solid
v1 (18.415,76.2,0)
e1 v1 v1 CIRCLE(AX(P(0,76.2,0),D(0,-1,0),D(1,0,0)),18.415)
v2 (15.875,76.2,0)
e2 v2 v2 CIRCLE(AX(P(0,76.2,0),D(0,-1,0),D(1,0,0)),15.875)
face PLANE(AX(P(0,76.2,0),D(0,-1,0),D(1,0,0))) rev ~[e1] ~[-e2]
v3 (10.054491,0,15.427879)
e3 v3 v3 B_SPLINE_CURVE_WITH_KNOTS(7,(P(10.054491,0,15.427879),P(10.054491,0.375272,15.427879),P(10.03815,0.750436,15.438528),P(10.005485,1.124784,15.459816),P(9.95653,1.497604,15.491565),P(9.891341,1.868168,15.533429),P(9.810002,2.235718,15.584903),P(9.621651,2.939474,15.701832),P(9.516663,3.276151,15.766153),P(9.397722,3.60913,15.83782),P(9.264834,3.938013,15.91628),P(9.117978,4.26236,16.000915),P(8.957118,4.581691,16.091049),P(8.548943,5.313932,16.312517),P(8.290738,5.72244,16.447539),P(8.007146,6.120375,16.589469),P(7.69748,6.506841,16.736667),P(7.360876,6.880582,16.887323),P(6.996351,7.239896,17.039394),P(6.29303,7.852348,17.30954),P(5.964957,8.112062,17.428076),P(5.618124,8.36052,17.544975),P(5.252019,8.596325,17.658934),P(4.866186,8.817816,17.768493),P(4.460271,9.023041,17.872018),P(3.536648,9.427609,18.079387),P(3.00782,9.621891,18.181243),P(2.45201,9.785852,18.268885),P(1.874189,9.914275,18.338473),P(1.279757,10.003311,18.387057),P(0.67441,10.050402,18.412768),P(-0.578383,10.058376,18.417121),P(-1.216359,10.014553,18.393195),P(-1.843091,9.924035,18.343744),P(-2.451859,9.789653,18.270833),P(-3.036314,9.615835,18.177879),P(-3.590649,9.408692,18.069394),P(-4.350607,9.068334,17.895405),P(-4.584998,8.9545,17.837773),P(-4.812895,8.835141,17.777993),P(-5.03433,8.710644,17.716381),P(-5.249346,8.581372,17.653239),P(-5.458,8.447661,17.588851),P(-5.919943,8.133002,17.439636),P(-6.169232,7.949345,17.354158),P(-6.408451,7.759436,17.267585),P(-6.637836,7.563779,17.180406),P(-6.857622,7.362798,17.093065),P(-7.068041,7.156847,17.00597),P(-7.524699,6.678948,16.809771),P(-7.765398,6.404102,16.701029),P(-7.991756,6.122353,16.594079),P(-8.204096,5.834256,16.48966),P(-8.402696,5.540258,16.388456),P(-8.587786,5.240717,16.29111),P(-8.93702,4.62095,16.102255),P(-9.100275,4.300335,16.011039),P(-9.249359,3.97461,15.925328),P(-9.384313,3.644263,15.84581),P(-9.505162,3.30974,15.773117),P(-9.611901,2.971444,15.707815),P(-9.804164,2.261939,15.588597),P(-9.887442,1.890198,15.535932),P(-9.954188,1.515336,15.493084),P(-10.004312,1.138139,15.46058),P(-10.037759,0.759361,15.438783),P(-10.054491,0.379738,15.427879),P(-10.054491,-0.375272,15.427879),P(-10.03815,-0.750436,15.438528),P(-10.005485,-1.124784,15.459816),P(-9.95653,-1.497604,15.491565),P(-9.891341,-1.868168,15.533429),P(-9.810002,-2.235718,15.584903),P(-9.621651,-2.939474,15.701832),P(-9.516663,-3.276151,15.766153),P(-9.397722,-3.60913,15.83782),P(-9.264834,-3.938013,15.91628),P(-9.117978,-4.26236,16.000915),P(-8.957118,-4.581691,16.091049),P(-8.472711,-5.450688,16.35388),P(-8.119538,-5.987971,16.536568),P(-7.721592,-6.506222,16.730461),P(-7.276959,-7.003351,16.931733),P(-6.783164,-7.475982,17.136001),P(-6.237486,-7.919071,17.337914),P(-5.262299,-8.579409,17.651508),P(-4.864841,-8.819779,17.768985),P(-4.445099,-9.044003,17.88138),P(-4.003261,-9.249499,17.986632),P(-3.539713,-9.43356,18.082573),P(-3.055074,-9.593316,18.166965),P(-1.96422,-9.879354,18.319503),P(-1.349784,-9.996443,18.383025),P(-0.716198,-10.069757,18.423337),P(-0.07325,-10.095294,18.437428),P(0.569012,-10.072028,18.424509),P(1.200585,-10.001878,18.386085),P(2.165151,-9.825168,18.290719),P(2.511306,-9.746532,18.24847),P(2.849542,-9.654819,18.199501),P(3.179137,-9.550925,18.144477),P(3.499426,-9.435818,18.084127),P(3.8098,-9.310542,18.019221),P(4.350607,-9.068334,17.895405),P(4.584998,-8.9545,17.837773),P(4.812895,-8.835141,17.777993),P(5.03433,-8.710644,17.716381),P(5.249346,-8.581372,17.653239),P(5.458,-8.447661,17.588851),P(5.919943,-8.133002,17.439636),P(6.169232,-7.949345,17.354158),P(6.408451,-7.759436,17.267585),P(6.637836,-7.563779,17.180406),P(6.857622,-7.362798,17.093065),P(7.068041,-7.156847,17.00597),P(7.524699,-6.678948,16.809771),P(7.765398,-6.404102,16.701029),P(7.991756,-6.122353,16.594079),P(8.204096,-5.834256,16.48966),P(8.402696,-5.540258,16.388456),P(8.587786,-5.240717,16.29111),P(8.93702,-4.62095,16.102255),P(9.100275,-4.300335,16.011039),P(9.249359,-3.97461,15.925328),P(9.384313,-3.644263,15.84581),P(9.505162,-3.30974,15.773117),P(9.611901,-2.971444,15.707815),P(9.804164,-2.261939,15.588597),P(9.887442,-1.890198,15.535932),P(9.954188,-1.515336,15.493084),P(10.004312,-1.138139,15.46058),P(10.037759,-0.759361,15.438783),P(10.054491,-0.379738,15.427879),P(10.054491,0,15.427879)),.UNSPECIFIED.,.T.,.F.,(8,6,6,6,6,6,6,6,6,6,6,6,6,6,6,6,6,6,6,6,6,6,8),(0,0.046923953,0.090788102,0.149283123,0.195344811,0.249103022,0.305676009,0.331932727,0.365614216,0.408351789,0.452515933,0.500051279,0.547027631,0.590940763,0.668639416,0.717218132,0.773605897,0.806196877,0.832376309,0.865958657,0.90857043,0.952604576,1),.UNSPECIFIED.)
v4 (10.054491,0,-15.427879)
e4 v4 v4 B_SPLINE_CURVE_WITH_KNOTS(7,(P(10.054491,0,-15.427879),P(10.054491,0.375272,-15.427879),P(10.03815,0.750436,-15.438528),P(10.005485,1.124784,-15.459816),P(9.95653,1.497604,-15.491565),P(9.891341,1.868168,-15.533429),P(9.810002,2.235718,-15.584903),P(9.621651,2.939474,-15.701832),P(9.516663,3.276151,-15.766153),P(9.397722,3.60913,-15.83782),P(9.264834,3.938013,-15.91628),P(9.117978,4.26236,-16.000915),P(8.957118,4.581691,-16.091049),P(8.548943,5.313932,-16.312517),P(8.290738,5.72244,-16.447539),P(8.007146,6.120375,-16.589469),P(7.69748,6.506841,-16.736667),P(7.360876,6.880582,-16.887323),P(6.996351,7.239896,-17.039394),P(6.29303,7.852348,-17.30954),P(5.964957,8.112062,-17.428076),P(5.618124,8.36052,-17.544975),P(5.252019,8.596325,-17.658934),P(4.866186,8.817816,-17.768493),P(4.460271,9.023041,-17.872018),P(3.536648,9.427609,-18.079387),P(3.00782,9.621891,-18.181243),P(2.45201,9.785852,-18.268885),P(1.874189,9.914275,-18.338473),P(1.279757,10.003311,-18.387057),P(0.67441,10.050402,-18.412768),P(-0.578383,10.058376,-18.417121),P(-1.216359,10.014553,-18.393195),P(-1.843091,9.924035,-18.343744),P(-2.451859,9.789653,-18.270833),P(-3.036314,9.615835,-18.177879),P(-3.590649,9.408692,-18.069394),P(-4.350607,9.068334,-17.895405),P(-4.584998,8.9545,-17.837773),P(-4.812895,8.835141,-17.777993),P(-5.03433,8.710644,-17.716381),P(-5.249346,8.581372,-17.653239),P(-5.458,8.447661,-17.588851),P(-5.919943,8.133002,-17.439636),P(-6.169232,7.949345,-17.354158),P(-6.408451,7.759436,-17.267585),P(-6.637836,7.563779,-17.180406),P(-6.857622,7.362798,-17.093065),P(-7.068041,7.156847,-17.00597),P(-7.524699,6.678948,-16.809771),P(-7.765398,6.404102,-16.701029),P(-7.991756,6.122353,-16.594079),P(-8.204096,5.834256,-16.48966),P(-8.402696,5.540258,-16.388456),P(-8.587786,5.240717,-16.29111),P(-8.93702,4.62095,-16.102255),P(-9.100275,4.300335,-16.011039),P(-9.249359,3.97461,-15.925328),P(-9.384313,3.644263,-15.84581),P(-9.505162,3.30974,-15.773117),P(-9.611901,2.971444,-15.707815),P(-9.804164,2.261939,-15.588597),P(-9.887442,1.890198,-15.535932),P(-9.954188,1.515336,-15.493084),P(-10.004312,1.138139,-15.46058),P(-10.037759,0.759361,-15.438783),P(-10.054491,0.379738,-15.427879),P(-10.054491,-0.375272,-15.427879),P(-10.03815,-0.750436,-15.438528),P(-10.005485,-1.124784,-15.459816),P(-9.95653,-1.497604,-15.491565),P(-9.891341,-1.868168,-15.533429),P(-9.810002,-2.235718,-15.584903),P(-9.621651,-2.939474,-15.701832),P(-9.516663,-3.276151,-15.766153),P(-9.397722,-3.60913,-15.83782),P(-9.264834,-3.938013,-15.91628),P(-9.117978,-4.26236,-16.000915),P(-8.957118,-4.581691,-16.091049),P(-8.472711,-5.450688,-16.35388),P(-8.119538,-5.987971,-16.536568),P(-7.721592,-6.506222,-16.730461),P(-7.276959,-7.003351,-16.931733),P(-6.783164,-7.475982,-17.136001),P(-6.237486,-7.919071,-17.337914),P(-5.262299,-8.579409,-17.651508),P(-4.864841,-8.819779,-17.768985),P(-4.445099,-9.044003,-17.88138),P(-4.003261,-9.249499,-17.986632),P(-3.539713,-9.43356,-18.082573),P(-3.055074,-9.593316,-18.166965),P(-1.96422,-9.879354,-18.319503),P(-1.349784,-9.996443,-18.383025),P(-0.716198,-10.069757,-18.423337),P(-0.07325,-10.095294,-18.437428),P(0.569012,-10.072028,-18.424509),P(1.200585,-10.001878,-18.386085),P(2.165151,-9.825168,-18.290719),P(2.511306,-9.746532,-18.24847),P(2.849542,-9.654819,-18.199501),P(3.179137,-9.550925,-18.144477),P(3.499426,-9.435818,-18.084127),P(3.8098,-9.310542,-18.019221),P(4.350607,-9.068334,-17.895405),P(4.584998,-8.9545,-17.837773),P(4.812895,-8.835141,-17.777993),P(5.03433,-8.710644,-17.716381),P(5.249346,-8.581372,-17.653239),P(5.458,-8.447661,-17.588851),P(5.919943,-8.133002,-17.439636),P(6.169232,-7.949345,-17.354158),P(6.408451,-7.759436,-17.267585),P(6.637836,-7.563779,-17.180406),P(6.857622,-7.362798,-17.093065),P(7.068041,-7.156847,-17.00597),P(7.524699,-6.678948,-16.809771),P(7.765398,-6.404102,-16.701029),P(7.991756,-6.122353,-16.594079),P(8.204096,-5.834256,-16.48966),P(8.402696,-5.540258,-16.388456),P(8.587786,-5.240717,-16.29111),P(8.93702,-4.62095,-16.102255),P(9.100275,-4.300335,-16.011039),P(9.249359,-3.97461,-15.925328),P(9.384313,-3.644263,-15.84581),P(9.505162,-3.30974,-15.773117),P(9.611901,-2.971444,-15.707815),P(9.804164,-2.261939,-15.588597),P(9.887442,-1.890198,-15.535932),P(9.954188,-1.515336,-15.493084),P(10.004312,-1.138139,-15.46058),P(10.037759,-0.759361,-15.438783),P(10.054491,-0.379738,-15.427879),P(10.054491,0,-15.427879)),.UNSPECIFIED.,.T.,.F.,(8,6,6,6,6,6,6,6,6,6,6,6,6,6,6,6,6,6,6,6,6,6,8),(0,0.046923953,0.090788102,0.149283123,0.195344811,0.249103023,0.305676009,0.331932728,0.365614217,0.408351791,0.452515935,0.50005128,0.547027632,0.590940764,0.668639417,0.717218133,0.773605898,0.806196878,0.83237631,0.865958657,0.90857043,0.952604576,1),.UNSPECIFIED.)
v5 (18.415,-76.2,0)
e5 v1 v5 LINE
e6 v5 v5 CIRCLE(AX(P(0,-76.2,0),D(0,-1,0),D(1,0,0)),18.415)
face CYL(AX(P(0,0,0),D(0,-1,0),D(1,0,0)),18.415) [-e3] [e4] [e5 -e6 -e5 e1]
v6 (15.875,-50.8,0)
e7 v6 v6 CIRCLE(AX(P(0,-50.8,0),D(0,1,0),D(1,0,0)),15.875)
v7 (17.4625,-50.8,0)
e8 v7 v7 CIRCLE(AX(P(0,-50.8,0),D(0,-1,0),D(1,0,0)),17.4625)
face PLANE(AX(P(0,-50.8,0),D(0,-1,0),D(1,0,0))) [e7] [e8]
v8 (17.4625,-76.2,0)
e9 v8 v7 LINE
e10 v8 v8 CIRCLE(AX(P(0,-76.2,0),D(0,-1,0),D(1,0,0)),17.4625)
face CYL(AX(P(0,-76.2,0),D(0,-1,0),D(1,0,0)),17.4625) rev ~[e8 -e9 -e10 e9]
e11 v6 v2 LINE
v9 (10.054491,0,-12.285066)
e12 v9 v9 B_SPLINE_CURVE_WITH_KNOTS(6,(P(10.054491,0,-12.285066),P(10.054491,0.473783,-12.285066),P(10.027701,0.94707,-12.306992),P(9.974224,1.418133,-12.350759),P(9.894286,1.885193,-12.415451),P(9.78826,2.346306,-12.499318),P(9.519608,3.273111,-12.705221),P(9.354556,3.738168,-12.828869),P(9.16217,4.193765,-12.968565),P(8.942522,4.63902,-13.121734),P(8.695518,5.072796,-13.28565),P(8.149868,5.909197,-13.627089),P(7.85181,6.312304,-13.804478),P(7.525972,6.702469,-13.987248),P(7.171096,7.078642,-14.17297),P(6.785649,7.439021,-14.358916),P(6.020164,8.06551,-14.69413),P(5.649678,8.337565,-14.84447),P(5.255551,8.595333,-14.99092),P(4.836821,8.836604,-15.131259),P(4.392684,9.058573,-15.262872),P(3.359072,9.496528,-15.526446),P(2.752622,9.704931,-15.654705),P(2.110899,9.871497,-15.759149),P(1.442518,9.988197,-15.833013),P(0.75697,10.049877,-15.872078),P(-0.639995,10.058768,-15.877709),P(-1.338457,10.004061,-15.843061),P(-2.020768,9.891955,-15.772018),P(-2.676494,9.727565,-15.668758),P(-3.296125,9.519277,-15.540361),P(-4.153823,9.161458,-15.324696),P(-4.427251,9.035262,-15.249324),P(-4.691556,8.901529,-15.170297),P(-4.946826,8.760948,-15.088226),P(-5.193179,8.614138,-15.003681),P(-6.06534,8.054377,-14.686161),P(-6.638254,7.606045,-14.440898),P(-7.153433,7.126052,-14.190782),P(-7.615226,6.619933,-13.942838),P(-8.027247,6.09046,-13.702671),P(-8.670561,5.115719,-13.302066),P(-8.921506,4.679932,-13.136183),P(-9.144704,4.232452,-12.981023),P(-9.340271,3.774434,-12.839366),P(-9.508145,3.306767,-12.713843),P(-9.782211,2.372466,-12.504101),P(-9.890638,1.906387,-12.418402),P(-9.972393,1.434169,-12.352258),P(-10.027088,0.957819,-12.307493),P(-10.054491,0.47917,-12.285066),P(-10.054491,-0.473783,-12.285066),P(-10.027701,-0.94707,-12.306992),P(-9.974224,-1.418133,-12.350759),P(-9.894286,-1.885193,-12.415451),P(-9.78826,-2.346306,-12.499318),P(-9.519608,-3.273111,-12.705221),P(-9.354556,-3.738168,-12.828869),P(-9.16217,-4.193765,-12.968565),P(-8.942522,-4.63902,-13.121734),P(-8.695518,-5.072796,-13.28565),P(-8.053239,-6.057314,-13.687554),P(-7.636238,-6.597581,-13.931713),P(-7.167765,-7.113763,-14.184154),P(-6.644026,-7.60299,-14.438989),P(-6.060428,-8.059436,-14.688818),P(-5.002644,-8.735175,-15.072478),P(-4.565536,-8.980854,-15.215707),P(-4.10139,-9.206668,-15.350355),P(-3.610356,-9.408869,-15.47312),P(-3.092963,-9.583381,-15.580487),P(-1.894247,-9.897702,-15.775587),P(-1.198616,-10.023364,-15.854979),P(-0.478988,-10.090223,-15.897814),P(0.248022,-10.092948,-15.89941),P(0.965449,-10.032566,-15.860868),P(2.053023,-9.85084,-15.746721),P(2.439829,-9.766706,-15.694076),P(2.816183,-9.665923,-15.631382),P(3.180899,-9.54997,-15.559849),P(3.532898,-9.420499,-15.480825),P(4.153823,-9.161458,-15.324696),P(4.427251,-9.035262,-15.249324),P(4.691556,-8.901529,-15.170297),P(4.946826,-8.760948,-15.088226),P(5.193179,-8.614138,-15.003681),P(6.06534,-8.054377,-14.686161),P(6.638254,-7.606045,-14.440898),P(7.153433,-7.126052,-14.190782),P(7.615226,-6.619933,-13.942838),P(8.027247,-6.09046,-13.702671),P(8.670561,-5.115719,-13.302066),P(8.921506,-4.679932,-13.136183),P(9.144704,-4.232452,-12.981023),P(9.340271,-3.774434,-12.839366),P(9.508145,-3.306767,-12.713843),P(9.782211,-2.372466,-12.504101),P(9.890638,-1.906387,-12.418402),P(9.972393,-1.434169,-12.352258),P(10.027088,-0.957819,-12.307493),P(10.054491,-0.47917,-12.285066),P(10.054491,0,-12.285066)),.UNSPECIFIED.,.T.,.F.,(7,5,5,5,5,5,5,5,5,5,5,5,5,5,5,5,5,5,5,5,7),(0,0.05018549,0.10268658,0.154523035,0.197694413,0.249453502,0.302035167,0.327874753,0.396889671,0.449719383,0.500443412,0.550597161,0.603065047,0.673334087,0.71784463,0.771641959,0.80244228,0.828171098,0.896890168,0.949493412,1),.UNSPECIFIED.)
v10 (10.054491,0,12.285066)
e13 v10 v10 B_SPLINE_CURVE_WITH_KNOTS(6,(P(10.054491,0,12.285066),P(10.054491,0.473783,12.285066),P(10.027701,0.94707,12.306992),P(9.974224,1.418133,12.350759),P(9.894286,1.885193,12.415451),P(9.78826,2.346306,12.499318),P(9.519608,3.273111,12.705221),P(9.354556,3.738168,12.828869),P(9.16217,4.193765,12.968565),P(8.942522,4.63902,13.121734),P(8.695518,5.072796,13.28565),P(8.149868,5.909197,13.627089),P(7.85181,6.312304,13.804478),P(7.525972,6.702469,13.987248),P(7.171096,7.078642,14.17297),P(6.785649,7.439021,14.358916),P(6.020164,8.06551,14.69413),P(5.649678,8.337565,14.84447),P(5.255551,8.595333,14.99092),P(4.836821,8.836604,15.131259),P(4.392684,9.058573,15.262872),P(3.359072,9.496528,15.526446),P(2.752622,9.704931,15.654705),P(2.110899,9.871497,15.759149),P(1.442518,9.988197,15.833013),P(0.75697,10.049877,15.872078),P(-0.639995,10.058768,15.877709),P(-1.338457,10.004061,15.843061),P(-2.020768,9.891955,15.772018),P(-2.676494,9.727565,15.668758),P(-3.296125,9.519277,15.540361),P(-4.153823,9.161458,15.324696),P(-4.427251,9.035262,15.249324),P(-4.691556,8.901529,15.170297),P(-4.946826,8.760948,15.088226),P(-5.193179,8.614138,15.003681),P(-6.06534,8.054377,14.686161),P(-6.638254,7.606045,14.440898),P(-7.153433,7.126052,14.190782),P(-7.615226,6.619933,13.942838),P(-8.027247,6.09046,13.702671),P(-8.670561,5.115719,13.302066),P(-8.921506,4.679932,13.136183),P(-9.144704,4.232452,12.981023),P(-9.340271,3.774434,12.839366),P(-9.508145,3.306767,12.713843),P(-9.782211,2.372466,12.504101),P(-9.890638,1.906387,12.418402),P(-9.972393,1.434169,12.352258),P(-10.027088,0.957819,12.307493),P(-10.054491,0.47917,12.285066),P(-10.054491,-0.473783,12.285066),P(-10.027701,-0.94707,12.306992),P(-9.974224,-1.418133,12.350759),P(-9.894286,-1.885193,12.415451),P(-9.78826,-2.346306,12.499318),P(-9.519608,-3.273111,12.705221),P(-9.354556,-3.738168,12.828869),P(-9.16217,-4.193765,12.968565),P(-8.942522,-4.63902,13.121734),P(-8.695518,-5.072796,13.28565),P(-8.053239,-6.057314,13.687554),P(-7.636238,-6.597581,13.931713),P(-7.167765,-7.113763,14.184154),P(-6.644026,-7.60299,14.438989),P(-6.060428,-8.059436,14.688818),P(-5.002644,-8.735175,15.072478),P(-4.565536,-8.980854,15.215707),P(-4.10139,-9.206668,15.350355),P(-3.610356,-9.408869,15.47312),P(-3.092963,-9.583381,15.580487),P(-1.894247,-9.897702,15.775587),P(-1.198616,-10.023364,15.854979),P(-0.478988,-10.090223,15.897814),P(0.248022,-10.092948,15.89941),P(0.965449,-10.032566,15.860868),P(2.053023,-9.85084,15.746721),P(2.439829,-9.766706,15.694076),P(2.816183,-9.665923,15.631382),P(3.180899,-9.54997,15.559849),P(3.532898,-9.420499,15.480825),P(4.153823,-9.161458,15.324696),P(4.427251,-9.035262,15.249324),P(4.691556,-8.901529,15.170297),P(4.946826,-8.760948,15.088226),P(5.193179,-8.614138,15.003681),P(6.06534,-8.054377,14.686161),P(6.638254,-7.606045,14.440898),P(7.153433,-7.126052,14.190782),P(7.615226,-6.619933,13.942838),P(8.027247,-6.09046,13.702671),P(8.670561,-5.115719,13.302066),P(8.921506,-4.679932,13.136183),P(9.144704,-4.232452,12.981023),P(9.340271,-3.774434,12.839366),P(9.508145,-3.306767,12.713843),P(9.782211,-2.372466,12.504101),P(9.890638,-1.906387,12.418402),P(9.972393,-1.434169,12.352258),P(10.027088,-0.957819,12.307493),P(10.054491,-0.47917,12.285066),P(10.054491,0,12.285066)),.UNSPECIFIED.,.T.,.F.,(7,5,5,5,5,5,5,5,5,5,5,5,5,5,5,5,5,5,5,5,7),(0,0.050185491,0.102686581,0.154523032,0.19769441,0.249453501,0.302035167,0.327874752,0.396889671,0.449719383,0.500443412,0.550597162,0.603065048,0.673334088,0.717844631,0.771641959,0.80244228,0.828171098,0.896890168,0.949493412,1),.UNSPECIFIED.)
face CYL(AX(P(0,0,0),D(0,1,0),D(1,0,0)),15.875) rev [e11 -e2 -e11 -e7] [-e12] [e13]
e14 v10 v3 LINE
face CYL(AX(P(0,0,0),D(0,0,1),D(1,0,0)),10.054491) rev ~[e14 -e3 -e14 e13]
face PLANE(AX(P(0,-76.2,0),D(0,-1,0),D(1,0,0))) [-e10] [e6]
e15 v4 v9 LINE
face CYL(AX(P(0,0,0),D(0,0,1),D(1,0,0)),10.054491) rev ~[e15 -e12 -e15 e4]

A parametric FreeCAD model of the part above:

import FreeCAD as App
import Part
import Sketcher
from FreeCAD import Vector
Q = App.Units.Quantity

doc = App.newDocument("Part")
body = doc.addObject("PartDesign::Body", "Body")

# Sketch on XZ plane
sketch1 = body.newObject("Sketcher::SketchObject", "Sketch")
sketch1.AttachmentSupport = (doc.getObject("XZ_Plane"), [""])
sketch1.MapMode = "FlatFace"
sketch1.addGeometry([
    Part.Circle(Vector(0, 0, 0), Vector(0, 0, 1), 18),
    Part.Circle(Vector(0, 0, 0), Vector(0, 0, 1), 16),
], False)
sketch1.addConstraint([
    Sketcher.Constraint("Coincident", 0, 3, -1, 1),
    Sketcher.Constraint("Coincident", 1, 3, -1, 1),
    Sketcher.Constraint("Diameter", 0, Q("1.45 in")),
    Sketcher.Constraint("Diameter", 1, Q("1.25 in")),
])
pad1 = body.newObject("PartDesign::Pad", "Pad")
pad1.Profile = sketch1
pad1.Length = Q("6 in")
pad1.Midplane = True

# Sketch on XY plane
sketch2 = body.newObject("Sketcher::SketchObject", "Sketch001")
sketch2.AttachmentSupport = (doc.getObject("XY_Plane"), [""])
sketch2.MapMode = "FlatFace"
sketch2.addGeometry(Part.Circle(Vector(0, 0, 0), Vector(0, 0, 1), 10), False)
sketch2.addConstraint([
    Sketcher.Constraint("Coincident", 0, 3, -1, 1),
    Sketcher.Constraint("Diameter", 0, Q("20.108982 mm")),
])
pocket1 = body.newObject("PartDesign::Pocket", "Pocket")
pocket1.Profile = sketch2
pocket1.Length = Q("3.2 in")
pocket1.Midplane = True

# Sketch on XZ plane
sketch3 = body.newObject("Sketcher::SketchObject", "Sketch002")
sketch3.AttachmentSupport = (doc.getObject("XZ_Plane"), [""])
sketch3.MapMode = "FlatFace"
sketch3.AttachmentOffset = App.Placement(Vector(0, 0, 3 * 25.4), App.Rotation())
sketch3.addGeometry(Part.Circle(Vector(0, 0, 0), Vector(0, 0, 1), 17), False)
sketch3.addConstraint([
    Sketcher.Constraint("Coincident", 0, 3, -1, 1),
    Sketcher.Constraint("Diameter", 0, Q("1.375 in")),
])
pocket2 = body.newObject("PartDesign::Pocket", "Pocket001")
pocket2.Profile = sketch3
pocket2.Length = Q("1 in")

doc.recompute()
